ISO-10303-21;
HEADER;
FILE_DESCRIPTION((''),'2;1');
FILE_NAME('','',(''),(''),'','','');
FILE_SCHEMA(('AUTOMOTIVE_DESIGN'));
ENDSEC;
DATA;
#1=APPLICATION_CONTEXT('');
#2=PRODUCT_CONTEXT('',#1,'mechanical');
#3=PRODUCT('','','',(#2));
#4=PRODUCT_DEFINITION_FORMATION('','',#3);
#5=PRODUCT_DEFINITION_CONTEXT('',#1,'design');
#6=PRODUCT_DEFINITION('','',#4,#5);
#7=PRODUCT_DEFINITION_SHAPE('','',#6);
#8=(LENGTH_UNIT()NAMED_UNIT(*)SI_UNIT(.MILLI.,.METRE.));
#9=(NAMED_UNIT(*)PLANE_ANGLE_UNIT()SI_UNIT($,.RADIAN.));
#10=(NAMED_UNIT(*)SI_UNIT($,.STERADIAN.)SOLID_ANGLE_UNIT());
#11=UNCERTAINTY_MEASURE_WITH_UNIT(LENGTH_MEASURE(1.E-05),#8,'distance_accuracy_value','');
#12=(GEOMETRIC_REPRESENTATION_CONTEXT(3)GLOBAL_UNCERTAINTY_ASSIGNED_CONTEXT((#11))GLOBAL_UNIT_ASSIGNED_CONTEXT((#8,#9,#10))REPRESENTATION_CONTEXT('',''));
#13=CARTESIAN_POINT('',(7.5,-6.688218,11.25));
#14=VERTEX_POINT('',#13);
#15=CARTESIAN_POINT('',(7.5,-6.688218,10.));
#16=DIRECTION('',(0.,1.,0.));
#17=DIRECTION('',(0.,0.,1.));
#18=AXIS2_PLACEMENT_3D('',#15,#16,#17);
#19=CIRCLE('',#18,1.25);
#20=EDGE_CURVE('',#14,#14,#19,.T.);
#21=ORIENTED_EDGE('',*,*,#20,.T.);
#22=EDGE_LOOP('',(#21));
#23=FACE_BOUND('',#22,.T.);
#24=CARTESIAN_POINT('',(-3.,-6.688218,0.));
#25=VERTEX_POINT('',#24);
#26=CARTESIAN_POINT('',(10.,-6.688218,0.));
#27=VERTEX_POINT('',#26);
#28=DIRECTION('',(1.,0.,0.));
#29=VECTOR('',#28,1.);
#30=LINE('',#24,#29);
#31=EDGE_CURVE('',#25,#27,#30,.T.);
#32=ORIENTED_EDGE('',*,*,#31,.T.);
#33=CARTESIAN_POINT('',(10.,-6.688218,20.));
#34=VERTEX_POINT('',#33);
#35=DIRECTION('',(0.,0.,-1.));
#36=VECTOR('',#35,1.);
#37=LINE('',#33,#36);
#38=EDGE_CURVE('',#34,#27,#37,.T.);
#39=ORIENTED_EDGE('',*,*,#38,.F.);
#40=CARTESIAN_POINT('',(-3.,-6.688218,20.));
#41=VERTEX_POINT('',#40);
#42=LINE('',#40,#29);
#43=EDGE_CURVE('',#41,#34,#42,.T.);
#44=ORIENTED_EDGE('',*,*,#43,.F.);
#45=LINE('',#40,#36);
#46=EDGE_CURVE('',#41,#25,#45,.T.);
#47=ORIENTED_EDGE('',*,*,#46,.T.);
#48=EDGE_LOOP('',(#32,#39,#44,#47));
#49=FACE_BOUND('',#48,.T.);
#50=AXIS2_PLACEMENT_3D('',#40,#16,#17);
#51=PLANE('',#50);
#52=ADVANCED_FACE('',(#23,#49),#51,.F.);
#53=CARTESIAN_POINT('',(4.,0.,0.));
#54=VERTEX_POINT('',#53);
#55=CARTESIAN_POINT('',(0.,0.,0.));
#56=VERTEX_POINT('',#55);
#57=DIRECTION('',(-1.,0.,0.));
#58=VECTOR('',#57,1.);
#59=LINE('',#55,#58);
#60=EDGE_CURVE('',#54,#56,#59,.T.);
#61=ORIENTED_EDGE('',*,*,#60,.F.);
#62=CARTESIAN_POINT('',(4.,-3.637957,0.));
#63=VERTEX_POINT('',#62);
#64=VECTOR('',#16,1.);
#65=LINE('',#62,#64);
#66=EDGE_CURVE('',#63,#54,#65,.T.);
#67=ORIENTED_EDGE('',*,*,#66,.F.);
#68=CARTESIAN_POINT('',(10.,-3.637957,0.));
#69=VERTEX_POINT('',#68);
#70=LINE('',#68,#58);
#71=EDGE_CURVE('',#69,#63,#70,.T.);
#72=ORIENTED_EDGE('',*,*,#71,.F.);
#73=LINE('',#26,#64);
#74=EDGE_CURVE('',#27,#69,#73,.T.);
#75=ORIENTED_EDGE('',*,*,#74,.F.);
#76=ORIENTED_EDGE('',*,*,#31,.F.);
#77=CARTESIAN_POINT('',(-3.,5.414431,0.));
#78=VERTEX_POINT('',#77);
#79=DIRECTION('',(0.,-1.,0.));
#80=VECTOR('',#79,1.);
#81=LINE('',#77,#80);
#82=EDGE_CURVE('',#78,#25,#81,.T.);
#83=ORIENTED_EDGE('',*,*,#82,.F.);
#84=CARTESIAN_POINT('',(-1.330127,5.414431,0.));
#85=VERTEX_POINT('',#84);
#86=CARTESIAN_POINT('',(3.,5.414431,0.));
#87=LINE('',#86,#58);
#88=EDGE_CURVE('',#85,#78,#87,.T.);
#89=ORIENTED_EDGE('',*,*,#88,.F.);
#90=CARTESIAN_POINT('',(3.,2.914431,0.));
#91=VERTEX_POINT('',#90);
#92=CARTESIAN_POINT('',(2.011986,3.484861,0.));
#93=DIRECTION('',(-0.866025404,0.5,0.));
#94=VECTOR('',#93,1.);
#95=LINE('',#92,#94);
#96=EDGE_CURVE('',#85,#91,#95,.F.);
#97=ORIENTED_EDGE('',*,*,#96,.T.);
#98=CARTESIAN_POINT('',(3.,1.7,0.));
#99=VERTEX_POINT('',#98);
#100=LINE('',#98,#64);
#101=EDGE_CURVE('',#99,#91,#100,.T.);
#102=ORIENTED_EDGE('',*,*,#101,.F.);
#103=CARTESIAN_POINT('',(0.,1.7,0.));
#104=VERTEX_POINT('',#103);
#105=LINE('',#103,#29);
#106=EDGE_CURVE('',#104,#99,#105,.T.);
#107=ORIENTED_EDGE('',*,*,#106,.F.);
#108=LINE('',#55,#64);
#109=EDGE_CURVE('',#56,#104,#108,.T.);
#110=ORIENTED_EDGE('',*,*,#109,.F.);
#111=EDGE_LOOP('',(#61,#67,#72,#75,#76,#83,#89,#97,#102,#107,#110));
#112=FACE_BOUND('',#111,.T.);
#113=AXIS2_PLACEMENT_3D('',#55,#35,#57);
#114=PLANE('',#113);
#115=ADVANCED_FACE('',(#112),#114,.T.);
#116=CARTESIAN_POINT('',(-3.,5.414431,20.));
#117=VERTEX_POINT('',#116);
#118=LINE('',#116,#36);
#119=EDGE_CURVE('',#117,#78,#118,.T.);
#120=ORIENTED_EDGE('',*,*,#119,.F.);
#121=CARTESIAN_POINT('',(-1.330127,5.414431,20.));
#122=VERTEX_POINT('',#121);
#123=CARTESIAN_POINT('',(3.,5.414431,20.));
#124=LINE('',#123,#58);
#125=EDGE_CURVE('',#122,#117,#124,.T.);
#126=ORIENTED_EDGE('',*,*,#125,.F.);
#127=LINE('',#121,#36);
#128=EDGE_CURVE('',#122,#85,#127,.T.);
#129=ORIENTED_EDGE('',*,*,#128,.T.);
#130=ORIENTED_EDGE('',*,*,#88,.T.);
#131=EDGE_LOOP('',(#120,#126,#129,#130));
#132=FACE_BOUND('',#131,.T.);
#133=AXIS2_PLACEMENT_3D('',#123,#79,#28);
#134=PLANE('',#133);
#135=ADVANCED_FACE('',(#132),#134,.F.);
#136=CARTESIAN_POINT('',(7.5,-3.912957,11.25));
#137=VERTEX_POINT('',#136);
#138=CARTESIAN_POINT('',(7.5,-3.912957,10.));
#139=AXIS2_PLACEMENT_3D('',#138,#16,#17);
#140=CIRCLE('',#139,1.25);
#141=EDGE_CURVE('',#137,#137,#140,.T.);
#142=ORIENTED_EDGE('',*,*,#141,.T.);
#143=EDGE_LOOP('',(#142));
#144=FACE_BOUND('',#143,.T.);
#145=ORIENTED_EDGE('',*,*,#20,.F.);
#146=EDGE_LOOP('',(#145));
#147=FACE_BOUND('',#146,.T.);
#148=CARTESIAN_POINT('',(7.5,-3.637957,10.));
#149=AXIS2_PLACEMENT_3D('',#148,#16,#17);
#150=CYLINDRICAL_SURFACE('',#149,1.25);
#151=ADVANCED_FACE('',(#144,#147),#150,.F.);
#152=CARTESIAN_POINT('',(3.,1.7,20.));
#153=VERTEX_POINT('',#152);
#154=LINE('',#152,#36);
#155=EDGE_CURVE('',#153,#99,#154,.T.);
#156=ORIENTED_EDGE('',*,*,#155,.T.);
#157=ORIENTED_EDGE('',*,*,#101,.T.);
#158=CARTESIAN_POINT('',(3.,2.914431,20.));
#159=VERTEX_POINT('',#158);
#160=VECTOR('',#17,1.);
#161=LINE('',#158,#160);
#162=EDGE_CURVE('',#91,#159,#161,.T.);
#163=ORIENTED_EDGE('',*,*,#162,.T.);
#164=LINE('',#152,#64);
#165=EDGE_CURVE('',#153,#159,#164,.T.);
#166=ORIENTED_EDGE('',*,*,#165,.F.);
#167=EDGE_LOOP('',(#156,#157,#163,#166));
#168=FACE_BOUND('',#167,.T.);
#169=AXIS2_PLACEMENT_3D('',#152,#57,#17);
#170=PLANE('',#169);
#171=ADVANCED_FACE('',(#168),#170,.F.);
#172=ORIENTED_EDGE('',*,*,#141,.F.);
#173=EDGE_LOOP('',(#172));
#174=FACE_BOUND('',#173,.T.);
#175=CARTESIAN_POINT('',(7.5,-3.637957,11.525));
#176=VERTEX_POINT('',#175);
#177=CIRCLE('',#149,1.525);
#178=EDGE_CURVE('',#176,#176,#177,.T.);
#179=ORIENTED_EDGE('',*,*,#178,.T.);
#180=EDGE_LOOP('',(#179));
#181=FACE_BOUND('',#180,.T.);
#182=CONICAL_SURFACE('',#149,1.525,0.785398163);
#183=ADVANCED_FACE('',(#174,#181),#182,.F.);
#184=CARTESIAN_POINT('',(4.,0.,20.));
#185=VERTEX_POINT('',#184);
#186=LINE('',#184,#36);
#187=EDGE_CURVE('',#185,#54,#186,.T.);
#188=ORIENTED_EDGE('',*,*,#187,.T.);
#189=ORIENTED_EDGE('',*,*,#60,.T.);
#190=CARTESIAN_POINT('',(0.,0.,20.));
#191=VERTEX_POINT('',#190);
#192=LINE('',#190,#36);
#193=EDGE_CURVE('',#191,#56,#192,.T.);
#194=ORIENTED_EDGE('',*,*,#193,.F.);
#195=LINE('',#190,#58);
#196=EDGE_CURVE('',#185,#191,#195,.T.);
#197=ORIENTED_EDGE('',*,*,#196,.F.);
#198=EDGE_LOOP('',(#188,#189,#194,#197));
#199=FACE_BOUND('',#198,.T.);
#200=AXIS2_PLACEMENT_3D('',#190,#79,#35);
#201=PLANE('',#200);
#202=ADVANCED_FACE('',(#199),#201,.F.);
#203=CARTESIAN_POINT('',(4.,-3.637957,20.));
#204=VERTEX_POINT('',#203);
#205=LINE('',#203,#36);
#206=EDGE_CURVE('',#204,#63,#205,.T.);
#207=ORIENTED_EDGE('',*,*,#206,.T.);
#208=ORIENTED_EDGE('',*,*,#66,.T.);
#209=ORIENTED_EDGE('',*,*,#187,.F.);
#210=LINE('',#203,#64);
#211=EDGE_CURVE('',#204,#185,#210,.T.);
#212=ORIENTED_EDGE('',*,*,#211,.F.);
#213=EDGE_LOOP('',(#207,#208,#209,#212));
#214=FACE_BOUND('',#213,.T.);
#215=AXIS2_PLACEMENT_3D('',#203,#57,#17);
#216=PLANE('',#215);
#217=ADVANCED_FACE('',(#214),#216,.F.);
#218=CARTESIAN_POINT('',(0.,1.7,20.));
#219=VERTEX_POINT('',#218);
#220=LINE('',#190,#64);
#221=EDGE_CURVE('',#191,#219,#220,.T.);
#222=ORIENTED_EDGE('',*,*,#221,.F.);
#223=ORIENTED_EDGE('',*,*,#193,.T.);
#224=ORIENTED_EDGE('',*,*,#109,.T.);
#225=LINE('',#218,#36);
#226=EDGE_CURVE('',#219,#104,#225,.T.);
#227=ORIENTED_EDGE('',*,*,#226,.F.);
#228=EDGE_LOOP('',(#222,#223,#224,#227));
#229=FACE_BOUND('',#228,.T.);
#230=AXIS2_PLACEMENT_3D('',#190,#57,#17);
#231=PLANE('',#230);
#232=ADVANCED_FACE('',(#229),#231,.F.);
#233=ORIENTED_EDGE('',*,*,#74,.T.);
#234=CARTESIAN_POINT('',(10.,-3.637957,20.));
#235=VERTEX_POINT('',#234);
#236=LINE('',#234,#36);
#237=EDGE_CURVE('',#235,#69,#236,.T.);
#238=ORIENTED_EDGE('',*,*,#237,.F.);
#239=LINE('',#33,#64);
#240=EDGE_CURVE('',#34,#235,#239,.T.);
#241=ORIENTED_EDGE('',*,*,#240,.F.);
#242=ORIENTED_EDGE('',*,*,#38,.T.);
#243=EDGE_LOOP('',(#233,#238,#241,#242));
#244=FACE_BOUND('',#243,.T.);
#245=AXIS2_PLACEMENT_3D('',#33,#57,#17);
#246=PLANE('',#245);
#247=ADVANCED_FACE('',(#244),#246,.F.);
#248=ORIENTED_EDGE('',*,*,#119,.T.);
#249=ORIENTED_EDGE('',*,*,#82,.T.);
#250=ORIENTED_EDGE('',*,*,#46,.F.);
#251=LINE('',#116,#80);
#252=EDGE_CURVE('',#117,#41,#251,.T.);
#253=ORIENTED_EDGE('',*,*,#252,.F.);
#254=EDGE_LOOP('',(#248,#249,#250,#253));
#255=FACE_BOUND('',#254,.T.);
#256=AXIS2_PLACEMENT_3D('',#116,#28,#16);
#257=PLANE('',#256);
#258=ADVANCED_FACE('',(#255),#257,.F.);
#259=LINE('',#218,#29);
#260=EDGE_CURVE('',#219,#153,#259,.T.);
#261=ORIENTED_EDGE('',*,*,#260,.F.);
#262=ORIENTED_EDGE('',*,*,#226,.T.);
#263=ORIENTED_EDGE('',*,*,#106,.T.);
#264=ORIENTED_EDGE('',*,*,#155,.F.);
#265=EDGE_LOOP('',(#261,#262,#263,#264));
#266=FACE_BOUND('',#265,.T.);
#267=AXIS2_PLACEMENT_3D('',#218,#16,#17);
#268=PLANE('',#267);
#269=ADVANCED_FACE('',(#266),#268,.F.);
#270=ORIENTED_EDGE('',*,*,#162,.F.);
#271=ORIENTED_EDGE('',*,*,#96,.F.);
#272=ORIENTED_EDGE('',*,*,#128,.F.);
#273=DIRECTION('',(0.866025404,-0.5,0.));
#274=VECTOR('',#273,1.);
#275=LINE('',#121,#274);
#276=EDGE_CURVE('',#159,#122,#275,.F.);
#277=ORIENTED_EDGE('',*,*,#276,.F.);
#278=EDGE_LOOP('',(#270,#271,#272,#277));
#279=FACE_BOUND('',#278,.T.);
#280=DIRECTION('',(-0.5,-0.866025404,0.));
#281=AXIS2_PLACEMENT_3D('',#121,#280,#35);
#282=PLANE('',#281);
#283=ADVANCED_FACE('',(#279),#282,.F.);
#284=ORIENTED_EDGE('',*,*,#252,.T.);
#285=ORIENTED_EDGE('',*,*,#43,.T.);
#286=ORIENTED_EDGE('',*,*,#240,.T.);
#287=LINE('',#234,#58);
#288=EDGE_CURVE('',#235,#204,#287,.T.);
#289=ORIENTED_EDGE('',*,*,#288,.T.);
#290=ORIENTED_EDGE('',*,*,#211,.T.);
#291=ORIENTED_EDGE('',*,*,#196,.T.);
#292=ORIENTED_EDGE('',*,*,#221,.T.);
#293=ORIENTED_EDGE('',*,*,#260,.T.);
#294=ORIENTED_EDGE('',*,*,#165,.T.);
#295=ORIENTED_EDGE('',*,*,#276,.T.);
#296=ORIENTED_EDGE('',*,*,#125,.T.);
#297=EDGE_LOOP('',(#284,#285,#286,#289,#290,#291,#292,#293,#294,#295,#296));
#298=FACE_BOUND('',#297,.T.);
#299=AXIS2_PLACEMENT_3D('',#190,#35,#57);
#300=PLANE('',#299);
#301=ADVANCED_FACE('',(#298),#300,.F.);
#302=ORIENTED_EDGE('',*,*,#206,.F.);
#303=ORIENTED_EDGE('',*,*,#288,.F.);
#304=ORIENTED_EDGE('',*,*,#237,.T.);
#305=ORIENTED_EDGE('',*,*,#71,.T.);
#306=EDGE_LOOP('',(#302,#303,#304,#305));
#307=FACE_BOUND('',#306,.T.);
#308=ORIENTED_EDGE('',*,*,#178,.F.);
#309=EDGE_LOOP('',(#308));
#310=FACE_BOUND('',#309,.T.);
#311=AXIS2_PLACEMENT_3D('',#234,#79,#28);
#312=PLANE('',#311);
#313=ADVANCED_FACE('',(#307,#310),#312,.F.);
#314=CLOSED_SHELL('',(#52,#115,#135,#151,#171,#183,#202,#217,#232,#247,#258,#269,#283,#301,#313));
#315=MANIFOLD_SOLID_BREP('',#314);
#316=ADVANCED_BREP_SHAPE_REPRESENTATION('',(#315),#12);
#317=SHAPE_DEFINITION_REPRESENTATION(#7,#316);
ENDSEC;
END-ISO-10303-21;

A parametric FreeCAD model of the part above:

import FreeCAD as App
import Part
import Sketcher
from FreeCAD import Vector
Q = App.Units.Quantity


def edges_at(feature, points):
    """Names of the edges that pass closest to the given points."""
    edges = feature.Shape.Edges
    near = lambda p: min(range(len(edges)), key=lambda i: edges[i].distToShape(Part.Vertex(*p))[0])
    return sorted({f"Edge{near(p) + 1}" for p in points})


def add_polygon(sketch, points):
    """Adds a closed chain of lines whose ends are joined by coincident constraints."""
    first, n = sketch.GeometryCount, len(points)
    for a, b in zip(points, points[1:] + points[:1]):
        sketch.addGeometry(Part.LineSegment(App.Vector(*a, 0), App.Vector(*b, 0)), False)
    for i in range(n):
        sketch.addConstraint(Sketcher.Constraint("Coincident", first + i, 2, first + (i + 1) % n, 1))

doc = App.newDocument("Part")
body = doc.addObject("PartDesign::Body", "Body")

# Sketch on XY plane
sketch1 = doc.addObject("Sketcher::SketchObject", "Sketch")
body.addObject(sketch1)
sketch1.AttachmentSupport = (doc.XY_Plane, [""])
sketch1.MapMode = "FlatFace"
add_polygon(sketch1, [(4, 0), (0, 0), (0, 1.7), (3, 1.7), (3, 5.414431), (-3, 5.414431), (-3, -6.688218), (10, -6.688218), (10, -3.637957), (4, -3.637957)])  # lines 0-9
sketch1.addConstraint([
    Sketcher.Constraint("Horizontal", 0),
    Sketcher.Constraint("Vertical", 1),
    Sketcher.Constraint("Horizontal", 2),
    Sketcher.Constraint("Vertical", 3),
    Sketcher.Constraint("Horizontal", 4),
    Sketcher.Constraint("Vertical", 5),
    Sketcher.Constraint("Horizontal", 6),
    Sketcher.Constraint("Vertical", 7),
    Sketcher.Constraint("Horizontal", 8),
    Sketcher.Constraint("Vertical", 9),
    Sketcher.Constraint("Coincident", 0, 2, -1, 1),
    Sketcher.Constraint("Equal", 4, 8),
    Sketcher.Constraint("DistanceX", 0, 2, 0, 1, Q("4 mm")),
    Sketcher.Constraint("DistanceX", 2, 1, 2, 2, Q("3 mm")),
    Sketcher.Constraint("DistanceX", 4, 2, 4, 1, Q("6 mm")),
    Sketcher.Constraint("DistanceY", 1, 1, 1, 2, Q("1.7 mm")),
    Sketcher.Constraint("DistanceY", 3, 1, 3, 2, Q("3.714431 mm")),
    Sketcher.Constraint("DistanceY", 5, 2, 5, 1, Q("12.102648 mm")),
    Sketcher.Constraint("DistanceY", 7, 1, 7, 2, Q("3.050261 mm")),
])
pad1 = doc.addObject("PartDesign::Pad", "Pad")
body.addObject(pad1)
pad1.Profile = sketch1
pad1.Length = 20

# Sketch on XZ plane
sketch2 = doc.addObject("Sketcher::SketchObject", "Sketch001")
body.addObject(sketch2)
sketch2.AttachmentSupport = (doc.XZ_Plane, [""])
sketch2.MapMode = "FlatFace"
sketch2.AttachmentOffset = App.Placement(Vector(0, 0, 3.637957), App.Rotation())
sketch2.addGeometry(Part.Circle(Vector(7.5, 10, 0), Vector(0, 0, 1), 1.25), False)
sketch2.addConstraint([
    Sketcher.Constraint("Diameter", 0, Q("2.5 mm")),
    Sketcher.Constraint("DistanceY", -1, 1, 0, 3, Q("10 mm")),
    Sketcher.Constraint("DistanceX", -1, 1, 0, 3, Q("7.5 mm")),
])
doc.recompute()
hole = doc.addObject("PartDesign::Hole", "Hole")
body.addObject(hole)
hole.Profile = sketch2
hole.ThreadType = "None"
hole.Diameter = 2.5
hole.DepthType = "ThroughAll"
hole.HoleCutType = "Countersink"
hole.HoleCutDiameter = 3.05
hole.HoleCutCountersinkAngle = 90
hole.Reversed = True
doc.recompute()

chamfer = doc.addObject("PartDesign::Chamfer", "Chamfer")
body.addObject(chamfer)
chamfer.Base = (hole, edges_at(hole, [(3, 5.414, 10)]))
chamfer.ChamferType = "Two distances"
chamfer.Size = 2.5
chamfer.Size2 = 4.330127

doc.recompute()
